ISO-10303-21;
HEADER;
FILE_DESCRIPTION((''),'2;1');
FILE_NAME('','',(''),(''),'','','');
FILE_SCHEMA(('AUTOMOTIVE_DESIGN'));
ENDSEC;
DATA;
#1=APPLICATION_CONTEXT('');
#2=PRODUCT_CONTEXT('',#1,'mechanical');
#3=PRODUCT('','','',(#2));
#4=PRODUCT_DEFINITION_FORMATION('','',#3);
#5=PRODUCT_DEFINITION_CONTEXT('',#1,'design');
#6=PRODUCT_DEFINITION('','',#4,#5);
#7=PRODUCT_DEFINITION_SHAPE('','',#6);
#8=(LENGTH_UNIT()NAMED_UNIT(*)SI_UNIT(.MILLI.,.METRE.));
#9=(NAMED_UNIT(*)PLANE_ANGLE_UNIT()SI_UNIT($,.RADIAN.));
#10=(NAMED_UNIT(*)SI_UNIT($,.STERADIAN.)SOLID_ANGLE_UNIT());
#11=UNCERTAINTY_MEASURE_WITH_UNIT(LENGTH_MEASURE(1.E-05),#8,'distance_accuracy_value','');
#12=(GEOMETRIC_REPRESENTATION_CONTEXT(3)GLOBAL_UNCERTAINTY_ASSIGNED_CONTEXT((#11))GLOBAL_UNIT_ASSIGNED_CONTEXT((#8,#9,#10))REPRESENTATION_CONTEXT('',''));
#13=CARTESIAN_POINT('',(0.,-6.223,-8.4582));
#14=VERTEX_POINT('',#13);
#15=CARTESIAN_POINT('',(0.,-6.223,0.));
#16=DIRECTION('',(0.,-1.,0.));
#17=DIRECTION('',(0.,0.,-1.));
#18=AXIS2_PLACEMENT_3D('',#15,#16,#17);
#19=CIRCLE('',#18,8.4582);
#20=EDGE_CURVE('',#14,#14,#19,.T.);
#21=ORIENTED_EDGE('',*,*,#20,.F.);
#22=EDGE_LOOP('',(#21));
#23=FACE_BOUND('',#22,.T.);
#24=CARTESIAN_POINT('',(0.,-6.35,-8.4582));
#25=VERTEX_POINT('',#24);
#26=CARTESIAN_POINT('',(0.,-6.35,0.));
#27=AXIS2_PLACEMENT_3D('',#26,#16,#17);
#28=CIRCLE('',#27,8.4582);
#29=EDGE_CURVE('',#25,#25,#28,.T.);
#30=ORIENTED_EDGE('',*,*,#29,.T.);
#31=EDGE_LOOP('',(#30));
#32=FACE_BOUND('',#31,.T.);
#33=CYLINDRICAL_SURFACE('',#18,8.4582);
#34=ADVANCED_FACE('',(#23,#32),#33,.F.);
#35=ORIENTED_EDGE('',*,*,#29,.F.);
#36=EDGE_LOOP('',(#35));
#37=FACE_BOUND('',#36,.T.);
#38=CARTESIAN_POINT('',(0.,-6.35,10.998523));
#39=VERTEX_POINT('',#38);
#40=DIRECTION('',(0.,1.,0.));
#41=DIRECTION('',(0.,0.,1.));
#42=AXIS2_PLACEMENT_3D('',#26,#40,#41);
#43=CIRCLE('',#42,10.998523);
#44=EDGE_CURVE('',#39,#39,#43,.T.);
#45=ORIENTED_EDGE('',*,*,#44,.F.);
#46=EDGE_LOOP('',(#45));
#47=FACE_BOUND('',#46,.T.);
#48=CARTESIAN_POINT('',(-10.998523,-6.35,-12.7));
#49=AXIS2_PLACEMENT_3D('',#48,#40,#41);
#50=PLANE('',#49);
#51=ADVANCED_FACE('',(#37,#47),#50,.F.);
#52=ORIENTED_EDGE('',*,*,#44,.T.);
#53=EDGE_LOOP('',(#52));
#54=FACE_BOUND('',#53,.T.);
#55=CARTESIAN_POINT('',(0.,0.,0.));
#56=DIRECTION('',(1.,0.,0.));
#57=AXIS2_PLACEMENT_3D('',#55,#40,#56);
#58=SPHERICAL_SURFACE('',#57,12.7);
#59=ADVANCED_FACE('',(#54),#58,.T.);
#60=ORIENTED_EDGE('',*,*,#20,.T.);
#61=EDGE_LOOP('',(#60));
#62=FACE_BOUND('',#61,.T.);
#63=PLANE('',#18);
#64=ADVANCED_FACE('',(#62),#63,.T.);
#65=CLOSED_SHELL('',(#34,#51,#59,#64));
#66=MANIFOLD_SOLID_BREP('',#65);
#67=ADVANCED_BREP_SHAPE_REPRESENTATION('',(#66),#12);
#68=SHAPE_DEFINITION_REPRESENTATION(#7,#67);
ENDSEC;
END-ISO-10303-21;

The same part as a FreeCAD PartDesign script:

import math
import FreeCAD as App
import Part
import Sketcher
Q = App.Units.Quantity

doc = App.newDocument("Part")
body = doc.addObject("PartDesign::Body", "Body")

sketch1 = body.newObject("Sketcher::SketchObject", "Sketch")
sketch1.AttachmentSupport = (doc.getObject("XY_Plane"), [""])
sketch1.MapMode = "FlatFace"
sketch1.addGeometry([
    Part.LineSegment(App.Vector(0, 12.7, 0), App.Vector(0, -12.7, 0)),
    Part.ArcOfCircle(Part.Circle(App.Vector(0, 0, 0), App.Vector(0, 0, 1), 12.7), math.radians(-90), math.radians(90)),
], False)
sketch1.addConstraint([
    Sketcher.Constraint("Coincident", 0, 1, 1, 2),
    Sketcher.Constraint("Coincident", 1, 1, 0, 2),
    Sketcher.Constraint("Vertical", 0),
    Sketcher.Constraint("Coincident", 1, 3, -1, 1),
    Sketcher.Constraint("PointOnObject", 0, 1, -2),
    Sketcher.Constraint("Radius", 1, Q("0.5 in")),
])
revolution = body.newObject("PartDesign::Revolution", "Revolution")
revolution.Profile = sketch1
revolution.ReferenceAxis = (sketch1, ["V_Axis"])
revolution.Angle = 360

sketch2 = body.newObject("Sketcher::SketchObject", "Sketch001")
sketch2.AttachmentSupport = (doc.getObject("XY_Plane"), [""])
sketch2.MapMode = "FlatFace"
sketch2.addGeometry([
    Part.LineSegment(App.Vector(10.998523, -6.35, 0), App.Vector(-10.998523, -6.35, 0)),
    Part.ArcOfCircle(Part.Circle(App.Vector(0, 0, 0), App.Vector(0, 0, 1), 12.7), math.radians(-150), math.radians(-30)),
], False)
sketch2.addConstraint([
    Sketcher.Constraint("Coincident", 0, 1, 1, 2),
    Sketcher.Constraint("Coincident", 1, 1, 0, 2),
    Sketcher.Constraint("Horizontal", 0),
    Sketcher.Constraint("Coincident", 1, 3, -1, 1),
    Sketcher.Constraint("Radius", 1, Q("0.5 in")),
    Sketcher.Constraint("DistanceY", 0, 1, -1, 1, Q("0.25 in")),
])
pocket1 = body.newObject("PartDesign::Pocket", "Pocket")
pocket1.Profile = sketch2
pocket1.Type = "ThroughAll"
pocket1.Midplane = True

sketch3 = body.newObject("Sketcher::SketchObject", "Sketch002")
sketch3.AttachmentSupport = (doc.getObject("XZ_Plane"), [""])
sketch3.MapMode = "FlatFace"
sketch3.AttachmentOffset = App.Placement(App.Vector(0, 0, 0.25 * 25.4), App.Rotation())
sketch3.addGeometry(Part.Circle(App.Vector(0, 0, 0), App.Vector(0, 0, 1), 8.4582), False)
sketch3.addConstraint([
    Sketcher.Constraint("Coincident", 0, 3, -1, 1),
    Sketcher.Constraint("Diameter", 0, Q("0.666 in")),
])
pocket2 = body.newObject("PartDesign::Pocket", "Pocket001")
pocket2.Profile = sketch3
pocket2.Length = Q("0.005 in")

doc.recompute()
